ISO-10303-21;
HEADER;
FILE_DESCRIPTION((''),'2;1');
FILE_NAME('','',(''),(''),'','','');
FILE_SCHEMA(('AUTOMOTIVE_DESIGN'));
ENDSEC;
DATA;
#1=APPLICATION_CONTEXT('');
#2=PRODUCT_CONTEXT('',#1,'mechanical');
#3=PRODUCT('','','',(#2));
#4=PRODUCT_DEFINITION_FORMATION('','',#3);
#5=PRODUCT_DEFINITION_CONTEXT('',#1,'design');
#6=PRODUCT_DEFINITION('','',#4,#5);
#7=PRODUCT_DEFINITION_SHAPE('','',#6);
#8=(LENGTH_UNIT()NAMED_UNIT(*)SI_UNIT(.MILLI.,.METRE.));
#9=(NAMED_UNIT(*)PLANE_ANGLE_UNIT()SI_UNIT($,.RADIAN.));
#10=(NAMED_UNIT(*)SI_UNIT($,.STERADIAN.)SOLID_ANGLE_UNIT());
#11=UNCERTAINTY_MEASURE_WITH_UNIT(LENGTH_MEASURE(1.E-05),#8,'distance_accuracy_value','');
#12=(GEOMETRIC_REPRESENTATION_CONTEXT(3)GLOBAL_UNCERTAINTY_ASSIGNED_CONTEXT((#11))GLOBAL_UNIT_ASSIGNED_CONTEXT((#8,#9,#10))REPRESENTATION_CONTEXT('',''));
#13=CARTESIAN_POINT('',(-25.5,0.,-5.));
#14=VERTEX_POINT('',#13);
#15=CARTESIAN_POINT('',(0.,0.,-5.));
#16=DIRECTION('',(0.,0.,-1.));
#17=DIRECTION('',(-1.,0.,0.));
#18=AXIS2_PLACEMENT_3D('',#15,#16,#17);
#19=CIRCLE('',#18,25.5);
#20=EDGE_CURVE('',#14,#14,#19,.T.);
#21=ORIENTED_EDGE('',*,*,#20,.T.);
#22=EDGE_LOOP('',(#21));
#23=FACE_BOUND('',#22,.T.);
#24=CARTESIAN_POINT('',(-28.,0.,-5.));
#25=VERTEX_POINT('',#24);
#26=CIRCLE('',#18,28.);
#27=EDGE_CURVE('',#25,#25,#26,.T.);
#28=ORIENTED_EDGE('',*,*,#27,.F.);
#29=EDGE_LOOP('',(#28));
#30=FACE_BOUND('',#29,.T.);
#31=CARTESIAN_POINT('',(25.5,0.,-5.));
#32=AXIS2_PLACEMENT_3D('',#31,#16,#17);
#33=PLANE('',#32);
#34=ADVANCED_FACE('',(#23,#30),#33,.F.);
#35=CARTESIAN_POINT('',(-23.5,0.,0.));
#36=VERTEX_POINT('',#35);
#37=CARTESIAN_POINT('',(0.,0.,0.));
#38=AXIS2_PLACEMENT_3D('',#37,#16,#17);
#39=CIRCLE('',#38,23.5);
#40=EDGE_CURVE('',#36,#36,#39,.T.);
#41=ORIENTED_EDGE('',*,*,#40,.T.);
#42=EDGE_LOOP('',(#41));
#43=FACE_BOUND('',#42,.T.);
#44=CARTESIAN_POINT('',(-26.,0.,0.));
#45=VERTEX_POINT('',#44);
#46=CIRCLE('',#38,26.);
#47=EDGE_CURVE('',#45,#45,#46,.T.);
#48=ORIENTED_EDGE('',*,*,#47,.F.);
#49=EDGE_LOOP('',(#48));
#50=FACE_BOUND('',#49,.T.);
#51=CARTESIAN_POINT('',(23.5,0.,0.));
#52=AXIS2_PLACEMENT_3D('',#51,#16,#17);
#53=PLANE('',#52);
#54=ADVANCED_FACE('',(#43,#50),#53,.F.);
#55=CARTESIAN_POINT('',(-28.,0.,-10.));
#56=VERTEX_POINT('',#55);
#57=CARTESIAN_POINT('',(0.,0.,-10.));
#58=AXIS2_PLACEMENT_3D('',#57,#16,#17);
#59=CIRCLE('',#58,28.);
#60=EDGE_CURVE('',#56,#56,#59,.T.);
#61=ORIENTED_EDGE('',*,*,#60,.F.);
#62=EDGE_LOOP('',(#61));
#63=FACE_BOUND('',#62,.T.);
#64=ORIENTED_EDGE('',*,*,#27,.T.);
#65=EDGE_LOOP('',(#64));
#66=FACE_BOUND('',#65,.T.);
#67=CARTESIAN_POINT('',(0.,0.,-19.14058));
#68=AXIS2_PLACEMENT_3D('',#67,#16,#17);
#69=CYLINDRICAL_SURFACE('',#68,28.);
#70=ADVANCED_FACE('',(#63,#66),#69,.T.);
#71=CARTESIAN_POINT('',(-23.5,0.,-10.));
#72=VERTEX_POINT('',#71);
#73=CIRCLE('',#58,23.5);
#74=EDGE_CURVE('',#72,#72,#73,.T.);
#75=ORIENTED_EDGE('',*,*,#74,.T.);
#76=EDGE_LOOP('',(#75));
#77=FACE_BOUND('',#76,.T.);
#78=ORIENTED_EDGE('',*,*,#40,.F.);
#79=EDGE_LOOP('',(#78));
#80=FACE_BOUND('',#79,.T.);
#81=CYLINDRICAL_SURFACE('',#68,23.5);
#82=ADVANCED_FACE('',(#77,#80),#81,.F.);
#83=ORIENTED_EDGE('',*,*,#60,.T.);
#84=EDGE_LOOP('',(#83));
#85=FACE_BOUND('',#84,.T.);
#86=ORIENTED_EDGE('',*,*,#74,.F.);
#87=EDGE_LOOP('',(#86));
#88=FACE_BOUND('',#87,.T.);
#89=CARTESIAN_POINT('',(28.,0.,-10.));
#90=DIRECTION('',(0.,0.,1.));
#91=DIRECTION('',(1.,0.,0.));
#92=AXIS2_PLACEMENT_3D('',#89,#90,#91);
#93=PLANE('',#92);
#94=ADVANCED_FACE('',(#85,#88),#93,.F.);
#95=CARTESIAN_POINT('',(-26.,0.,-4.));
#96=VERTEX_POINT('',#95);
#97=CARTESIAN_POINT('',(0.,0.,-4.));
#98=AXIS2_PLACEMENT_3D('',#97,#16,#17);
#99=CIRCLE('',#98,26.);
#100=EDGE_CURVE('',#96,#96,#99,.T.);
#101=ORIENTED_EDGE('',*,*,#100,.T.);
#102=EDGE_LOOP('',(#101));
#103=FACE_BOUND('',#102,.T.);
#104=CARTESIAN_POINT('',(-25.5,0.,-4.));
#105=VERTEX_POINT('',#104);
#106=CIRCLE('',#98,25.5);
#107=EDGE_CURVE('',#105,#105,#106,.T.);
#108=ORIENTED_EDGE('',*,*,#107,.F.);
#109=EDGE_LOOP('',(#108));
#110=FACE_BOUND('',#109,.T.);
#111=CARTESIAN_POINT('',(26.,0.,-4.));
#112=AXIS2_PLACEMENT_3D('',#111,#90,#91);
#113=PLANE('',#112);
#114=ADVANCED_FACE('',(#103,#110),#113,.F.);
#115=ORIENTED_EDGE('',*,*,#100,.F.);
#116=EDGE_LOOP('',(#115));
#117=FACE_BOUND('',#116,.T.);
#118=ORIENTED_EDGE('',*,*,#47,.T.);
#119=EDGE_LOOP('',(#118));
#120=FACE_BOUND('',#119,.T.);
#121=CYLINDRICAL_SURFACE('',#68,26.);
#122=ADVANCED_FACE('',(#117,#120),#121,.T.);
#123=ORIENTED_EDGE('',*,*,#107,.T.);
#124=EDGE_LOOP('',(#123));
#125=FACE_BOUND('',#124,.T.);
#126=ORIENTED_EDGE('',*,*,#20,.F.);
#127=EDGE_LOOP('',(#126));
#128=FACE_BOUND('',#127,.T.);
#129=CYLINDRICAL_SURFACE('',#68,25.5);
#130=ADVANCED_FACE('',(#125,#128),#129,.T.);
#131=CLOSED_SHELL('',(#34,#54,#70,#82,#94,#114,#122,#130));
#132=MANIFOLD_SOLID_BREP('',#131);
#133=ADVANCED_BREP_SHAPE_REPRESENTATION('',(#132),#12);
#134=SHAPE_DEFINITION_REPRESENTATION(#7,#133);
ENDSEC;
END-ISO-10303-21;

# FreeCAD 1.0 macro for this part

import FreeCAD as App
import Part
import Sketcher

V = App.Vector
Q = App.Units.Quantity

doc = App.newDocument("Part")
body = doc.addObject("PartDesign::Body", "Body")

# Sketch on XZ plane
sketch1 = doc.addObject("Sketcher::SketchObject", "Sketch")
body.addObject(sketch1)
sketch1.AttachmentSupport = (doc.XZ_Plane, [""])
sketch1.MapMode = "FlatFace"
sketch1.addGeometry(Part.LineSegment(V(23.5, -10, 0), V(23.5, 0, 0)), False)
sketch1.addGeometry(Part.LineSegment(V(23.5, 0, 0), V(26, 0, 0)), False)
sketch1.addGeometry(Part.LineSegment(V(26, 0, 0), V(26, -4, 0)), False)
sketch1.addGeometry(Part.LineSegment(V(26, -4, 0), V(25.5, -4, 0)), False)
sketch1.addGeometry(Part.LineSegment(V(25.5, -4, 0), V(25.5, -5, 0)), False)
sketch1.addGeometry(Part.LineSegment(V(25.5, -5, 0), V(28, -5, 0)), False)
sketch1.addGeometry(Part.LineSegment(V(28, -5, 0), V(28, -10, 0)), False)
sketch1.addGeometry(Part.LineSegment(V(28, -10, 0), V(23.5, -10, 0)), False)
sketch1.addConstraint(Sketcher.Constraint("Coincident", 0, 2, 1, 1))
sketch1.addConstraint(Sketcher.Constraint("Coincident", 1, 2, 2, 1))
sketch1.addConstraint(Sketcher.Constraint("Coincident", 2, 2, 3, 1))
sketch1.addConstraint(Sketcher.Constraint("Coincident", 3, 2, 4, 1))
sketch1.addConstraint(Sketcher.Constraint("Coincident", 4, 2, 5, 1))
sketch1.addConstraint(Sketcher.Constraint("Coincident", 5, 2, 6, 1))
sketch1.addConstraint(Sketcher.Constraint("Coincident", 6, 2, 7, 1))
sketch1.addConstraint(Sketcher.Constraint("Coincident", 7, 2, 0, 1))
sketch1.addConstraint(Sketcher.Constraint("Vertical", 0))
sketch1.addConstraint(Sketcher.Constraint("Horizontal", 1))
sketch1.addConstraint(Sketcher.Constraint("Vertical", 2))
sketch1.addConstraint(Sketcher.Constraint("Horizontal", 3))
sketch1.addConstraint(Sketcher.Constraint("Vertical", 4))
sketch1.addConstraint(Sketcher.Constraint("Horizontal", 5))
sketch1.addConstraint(Sketcher.Constraint("Vertical", 6))
sketch1.addConstraint(Sketcher.Constraint("Horizontal", 7))
sketch1.addConstraint(Sketcher.Constraint("PointOnObject", 0, 2, -1))
sketch1.addConstraint(Sketcher.Constraint("Equal", 1, 5))
sketch1.addConstraint(Sketcher.Constraint("DistanceY", 0, 1, 0, 2, Q("10 mm")))
sketch1.addConstraint(Sketcher.Constraint("DistanceY", 2, 2, 2, 1, Q("4 mm")))
sketch1.addConstraint(Sketcher.Constraint("DistanceY", 4, 2, 4, 1, Q("1 mm")))
sketch1.addConstraint(Sketcher.Constraint("DistanceX", 1, 1, 1, 2, Q("2.5 mm")))
sketch1.addConstraint(Sketcher.Constraint("DistanceX", 3, 2, 3, 1, Q("0.5 mm")))
sketch1.addConstraint(Sketcher.Constraint("DistanceX", -1, 1, 1, 2, Q("26 mm")))
revolution = doc.addObject("PartDesign::Revolution", "Revolution")
body.addObject(revolution)
revolution.Profile = sketch1
revolution.ReferenceAxis = (sketch1, ["V_Axis"])
revolution.Angle = 360

doc.recompute()
